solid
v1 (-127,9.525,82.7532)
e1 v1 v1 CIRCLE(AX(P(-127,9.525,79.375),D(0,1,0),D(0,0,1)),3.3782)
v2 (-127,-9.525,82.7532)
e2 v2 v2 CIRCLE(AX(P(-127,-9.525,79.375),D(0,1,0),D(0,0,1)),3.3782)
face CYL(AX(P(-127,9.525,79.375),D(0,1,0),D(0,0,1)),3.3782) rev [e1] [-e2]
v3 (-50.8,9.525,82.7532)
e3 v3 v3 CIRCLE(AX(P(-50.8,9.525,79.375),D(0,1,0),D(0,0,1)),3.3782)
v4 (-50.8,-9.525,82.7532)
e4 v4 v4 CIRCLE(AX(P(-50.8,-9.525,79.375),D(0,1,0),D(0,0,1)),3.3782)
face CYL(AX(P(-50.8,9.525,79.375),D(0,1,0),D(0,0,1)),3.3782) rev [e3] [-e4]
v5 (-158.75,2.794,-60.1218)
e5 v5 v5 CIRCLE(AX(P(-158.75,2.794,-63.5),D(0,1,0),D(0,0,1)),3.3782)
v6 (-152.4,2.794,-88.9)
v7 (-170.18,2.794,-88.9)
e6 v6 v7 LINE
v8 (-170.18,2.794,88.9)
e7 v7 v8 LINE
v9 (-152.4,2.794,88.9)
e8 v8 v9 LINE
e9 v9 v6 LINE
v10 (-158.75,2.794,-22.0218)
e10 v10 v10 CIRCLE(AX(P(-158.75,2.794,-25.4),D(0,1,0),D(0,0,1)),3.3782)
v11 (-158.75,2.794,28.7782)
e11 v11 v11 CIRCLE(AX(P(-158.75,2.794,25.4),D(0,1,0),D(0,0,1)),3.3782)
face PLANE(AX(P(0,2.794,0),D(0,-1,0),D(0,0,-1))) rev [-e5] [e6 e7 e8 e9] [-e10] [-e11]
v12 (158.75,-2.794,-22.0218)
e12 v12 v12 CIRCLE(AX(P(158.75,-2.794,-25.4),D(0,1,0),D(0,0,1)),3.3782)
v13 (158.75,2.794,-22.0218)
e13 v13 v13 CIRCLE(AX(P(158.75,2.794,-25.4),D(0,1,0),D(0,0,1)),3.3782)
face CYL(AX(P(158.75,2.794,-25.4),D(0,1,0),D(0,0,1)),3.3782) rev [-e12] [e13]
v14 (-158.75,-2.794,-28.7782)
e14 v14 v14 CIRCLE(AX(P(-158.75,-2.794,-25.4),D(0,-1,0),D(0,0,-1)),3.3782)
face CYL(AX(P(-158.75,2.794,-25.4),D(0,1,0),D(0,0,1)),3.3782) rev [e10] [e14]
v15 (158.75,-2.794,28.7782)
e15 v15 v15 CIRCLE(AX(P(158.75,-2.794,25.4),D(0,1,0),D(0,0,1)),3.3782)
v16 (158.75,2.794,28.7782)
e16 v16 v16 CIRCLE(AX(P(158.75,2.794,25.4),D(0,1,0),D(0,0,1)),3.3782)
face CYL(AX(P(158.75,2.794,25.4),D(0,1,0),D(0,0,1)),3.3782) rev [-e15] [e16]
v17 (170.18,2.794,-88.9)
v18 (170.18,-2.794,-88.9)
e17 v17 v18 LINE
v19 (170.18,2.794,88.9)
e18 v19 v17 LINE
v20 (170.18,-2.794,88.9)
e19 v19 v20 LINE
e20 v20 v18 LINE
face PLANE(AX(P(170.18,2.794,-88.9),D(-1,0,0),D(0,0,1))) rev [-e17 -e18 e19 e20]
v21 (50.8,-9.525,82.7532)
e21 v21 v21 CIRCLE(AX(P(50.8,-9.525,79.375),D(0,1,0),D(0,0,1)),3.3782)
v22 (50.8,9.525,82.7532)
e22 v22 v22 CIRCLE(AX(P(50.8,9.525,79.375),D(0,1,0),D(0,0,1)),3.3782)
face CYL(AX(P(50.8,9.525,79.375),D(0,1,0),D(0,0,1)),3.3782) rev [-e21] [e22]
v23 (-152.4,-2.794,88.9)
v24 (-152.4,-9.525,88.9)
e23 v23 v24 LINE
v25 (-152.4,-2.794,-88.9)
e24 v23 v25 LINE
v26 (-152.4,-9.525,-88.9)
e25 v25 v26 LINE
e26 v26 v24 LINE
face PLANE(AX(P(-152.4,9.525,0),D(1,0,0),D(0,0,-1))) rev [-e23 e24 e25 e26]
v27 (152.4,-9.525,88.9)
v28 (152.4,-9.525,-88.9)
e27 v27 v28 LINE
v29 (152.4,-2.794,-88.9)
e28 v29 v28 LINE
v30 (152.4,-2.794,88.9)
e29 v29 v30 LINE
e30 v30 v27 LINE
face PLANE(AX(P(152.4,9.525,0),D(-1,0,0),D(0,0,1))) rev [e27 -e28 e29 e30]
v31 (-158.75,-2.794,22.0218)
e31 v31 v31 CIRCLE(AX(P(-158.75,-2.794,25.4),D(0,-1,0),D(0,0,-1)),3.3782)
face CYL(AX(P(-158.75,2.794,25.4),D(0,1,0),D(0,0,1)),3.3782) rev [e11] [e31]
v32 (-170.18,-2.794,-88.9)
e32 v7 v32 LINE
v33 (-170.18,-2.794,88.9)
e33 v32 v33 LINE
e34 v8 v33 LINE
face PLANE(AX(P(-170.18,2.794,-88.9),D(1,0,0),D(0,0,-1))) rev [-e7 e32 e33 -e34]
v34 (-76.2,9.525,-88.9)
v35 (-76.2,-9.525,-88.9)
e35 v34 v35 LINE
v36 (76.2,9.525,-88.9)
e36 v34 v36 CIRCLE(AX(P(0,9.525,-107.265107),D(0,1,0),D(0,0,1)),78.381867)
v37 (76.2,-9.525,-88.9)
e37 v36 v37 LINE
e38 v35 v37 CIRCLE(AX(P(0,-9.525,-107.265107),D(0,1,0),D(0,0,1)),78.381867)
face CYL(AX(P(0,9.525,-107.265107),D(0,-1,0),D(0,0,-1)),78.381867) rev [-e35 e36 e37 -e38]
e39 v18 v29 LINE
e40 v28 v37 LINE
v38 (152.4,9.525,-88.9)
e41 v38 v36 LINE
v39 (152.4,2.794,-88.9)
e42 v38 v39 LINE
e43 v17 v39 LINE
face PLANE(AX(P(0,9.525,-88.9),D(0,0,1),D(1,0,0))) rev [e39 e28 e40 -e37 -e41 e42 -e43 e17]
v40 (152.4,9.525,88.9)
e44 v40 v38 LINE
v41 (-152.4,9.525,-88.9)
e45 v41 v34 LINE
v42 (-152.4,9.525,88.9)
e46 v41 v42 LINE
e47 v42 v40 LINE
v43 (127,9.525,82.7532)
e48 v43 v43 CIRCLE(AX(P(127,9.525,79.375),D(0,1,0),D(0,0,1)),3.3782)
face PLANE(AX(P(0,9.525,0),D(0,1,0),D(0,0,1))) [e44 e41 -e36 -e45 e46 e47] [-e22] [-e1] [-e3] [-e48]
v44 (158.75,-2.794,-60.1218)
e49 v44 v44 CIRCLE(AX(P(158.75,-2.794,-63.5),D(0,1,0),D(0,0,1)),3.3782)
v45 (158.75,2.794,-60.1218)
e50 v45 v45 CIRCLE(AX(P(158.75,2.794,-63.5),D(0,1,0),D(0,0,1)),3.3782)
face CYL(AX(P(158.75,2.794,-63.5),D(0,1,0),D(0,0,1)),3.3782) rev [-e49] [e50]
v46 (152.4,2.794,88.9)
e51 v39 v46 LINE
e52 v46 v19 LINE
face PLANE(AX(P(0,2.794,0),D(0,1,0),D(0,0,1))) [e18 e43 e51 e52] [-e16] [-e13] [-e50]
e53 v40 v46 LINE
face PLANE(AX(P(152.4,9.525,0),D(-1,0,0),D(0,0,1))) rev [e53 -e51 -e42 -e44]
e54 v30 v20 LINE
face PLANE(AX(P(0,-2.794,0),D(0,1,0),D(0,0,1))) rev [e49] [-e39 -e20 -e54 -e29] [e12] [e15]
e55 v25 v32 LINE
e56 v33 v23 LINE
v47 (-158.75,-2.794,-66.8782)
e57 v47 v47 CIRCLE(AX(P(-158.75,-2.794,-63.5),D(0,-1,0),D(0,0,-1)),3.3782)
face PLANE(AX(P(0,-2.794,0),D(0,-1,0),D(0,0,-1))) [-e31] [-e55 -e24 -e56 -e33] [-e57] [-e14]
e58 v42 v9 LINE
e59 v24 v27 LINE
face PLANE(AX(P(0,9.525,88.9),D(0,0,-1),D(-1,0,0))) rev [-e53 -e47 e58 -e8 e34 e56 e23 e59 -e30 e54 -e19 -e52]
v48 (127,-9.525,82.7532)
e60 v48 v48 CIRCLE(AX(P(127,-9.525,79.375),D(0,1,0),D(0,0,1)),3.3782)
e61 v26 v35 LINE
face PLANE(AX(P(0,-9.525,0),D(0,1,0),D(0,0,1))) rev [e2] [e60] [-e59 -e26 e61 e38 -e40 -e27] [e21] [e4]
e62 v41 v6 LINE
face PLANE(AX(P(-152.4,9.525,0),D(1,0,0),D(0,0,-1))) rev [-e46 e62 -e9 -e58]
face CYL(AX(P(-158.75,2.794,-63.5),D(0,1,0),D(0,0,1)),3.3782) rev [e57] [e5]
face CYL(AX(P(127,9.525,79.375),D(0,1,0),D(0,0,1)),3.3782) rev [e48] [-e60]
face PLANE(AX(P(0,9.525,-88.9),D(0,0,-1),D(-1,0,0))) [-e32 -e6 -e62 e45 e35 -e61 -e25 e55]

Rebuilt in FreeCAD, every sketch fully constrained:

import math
import FreeCAD as App
import Part
import Sketcher

V = App.Vector
Q = App.Units.Quantity


def add_polygon(sketch, points):
    """Adds a closed chain of lines whose ends are joined by coincident constraints."""
    first, n = sketch.GeometryCount, len(points)
    for a, b in zip(points, points[1:] + points[:1]):
        sketch.addGeometry(Part.LineSegment(App.Vector(*a, 0), App.Vector(*b, 0)), False)
    for i in range(n):
        sketch.addConstraint(Sketcher.Constraint("Coincident", first + i, 2, first + (i + 1) % n, 1))

doc = App.newDocument("Part")
body = doc.addObject("PartDesign::Body", "Body")

sketch1 = body.newObject("Sketcher::SketchObject", "Sketch")
sketch1.AttachmentSupport = (doc.getObject("XZ_Plane"), [""])
sketch1.MapMode = "FlatFace"
sketch1.addGeometry(Part.LineSegment(V(-76, -89, 0), V(-152, -89, 0)), False)
sketch1.addGeometry(Part.LineSegment(V(-152, -89, 0), V(-152, 89, 0)), False)
sketch1.addGeometry(Part.LineSegment(V(-152, 89, 0), V(152, 89, 0)), False)
sketch1.addGeometry(Part.LineSegment(V(152, 89, 0), V(152, -89, 0)), False)
sketch1.addGeometry(Part.LineSegment(V(152, -89, 0), V(76, -89, 0)), False)
sketch1.addGeometry(Part.ArcOfCircle(Part.Circle(V(0, -107, 0), V(0, 0, 1), 78), math.radians(14), math.radians(166)), False)
sketch1.addConstraint(Sketcher.Constraint("Coincident", 0, 2, 1, 1))
sketch1.addConstraint(Sketcher.Constraint("Coincident", 1, 2, 2, 1))
sketch1.addConstraint(Sketcher.Constraint("Coincident", 2, 2, 3, 1))
sketch1.addConstraint(Sketcher.Constraint("Coincident", 3, 2, 4, 1))
sketch1.addConstraint(Sketcher.Constraint("Coincident", 4, 2, 5, 1))
sketch1.addConstraint(Sketcher.Constraint("Coincident", 5, 2, 0, 1))
sketch1.addConstraint(Sketcher.Constraint("Horizontal", 0))
sketch1.addConstraint(Sketcher.Constraint("Vertical", 1))
sketch1.addConstraint(Sketcher.Constraint("Horizontal", 2))
sketch1.addConstraint(Sketcher.Constraint("Vertical", 3))
sketch1.addConstraint(Sketcher.Constraint("Horizontal", 4))
sketch1.addConstraint(Sketcher.Constraint("Symmetric", 0, 2, 2, 2, -1, 1))
sketch1.addConstraint(Sketcher.Constraint("Symmetric", 4, 2, 5, 2, -2))
sketch1.addConstraint(Sketcher.Constraint("DistanceX", 0, 2, 0, 1, Q("3 in")))
sketch1.addConstraint(Sketcher.Constraint("DistanceX", 2, 1, 2, 2, Q("12 in")))
sketch1.addConstraint(Sketcher.Constraint("DistanceY", 1, 1, 1, 2, Q("7 in")))
sketch1.addConstraint(Sketcher.Constraint("Radius", 5, Q("78.381867 mm")))
pad1 = body.newObject("PartDesign::Pad", "Pad")
pad1.Profile = sketch1
pad1.Length = Q("0.75 in")
pad1.Midplane = True

sketch2 = body.newObject("Sketcher::SketchObject", "Sketch001")
sketch2.AttachmentSupport = (doc.getObject("XZ_Plane"), [""])
sketch2.MapMode = "FlatFace"
add_polygon(sketch2, [(-170, -89), (-170, 89), (-152, 89), (-152, -89)])
add_polygon(sketch2, [(152, -89), (152, 89), (170, 89), (170, -89)])
sketch2.addConstraint(Sketcher.Constraint("Vertical", 0))
sketch2.addConstraint(Sketcher.Constraint("Horizontal", 1))
sketch2.addConstraint(Sketcher.Constraint("Vertical", 2))
sketch2.addConstraint(Sketcher.Constraint("Horizontal", 3))
sketch2.addConstraint(Sketcher.Constraint("Vertical", 4))
sketch2.addConstraint(Sketcher.Constraint("Horizontal", 5))
sketch2.addConstraint(Sketcher.Constraint("Vertical", 6))
sketch2.addConstraint(Sketcher.Constraint("Horizontal", 7))
sketch2.addConstraint(Sketcher.Constraint("Symmetric", 2, 2, 4, 2, -1, 1))
sketch2.addConstraint(Sketcher.Constraint("Symmetric", 0, 2, 6, 2, -1, 1))
sketch2.addConstraint(Sketcher.Constraint("Horizontal", 1, 2, 4, 2))
sketch2.addConstraint(Sketcher.Constraint("DistanceY", 0, 1, 0, 2, Q("7 in")))
sketch2.addConstraint(Sketcher.Constraint("DistanceX", 1, 1, 1, 2, Q("0.7 in")))
sketch2.addConstraint(Sketcher.Constraint("DistanceX", 1, 2, -1, 1, Q("6 in")))
pad2 = body.newObject("PartDesign::Pad", "Pad001")
pad2.Profile = sketch2
pad2.Length = Q("0.22 in")
pad2.Midplane = True

sketch3 = body.newObject("Sketcher::SketchObject", "Sketch002")
sketch3.AttachmentSupport = (doc.getObject("XZ_Plane"), [""])
sketch3.MapMode = "FlatFace"
sketch3.AttachmentOffset = App.Placement(V(0, 0, -0.11 * 25.4), App.Rotation())
sketch3.addGeometry(Part.Circle(V(158.8, -63.5, 0), V(0, 0, 1), 3.4), False)
sketch3.addGeometry(Part.Circle(V(158.8, -25.4, 0), V(0, 0, 1), 3.4), False)
sketch3.addGeometry(Part.Circle(V(158.8, 25.4, 0), V(0, 0, 1), 3.4), False)
sketch3.addConstraint(Sketcher.Constraint("Equal", 0, 1))
sketch3.addConstraint(Sketcher.Constraint("Equal", 1, 2))
sketch3.addConstraint(Sketcher.Constraint("Symmetric", 1, 3, 2, 3, -1))
sketch3.addConstraint(Sketcher.Constraint("Vertical", 0, 3, 1, 3))
sketch3.addConstraint(Sketcher.Constraint("Diameter", 0, Q("0.266 in")))
sketch3.addConstraint(Sketcher.Constraint("DistanceY", 1, 3, -1, 1, Q("1 in")))
sketch3.addConstraint(Sketcher.Constraint("DistanceY", 0, 3, -1, 1, Q("2.5 in")))
sketch3.addConstraint(Sketcher.Constraint("DistanceX", -1, 1, 0, 3, Q("6.25 in")))
doc.recompute()
hole = body.newObject("PartDesign::Hole", "Hole")
hole.Profile = sketch3
hole.ThreadType = "None"
hole.Diameter = Q("0.266 in")
hole.DepthType = "ThroughAll"
hole.Reversed = True
doc.recompute()

mirrored = body.newObject("PartDesign::Mirrored", "Mirrored")
mirrored.Originals = [hole]
mirrored.MirrorPlane = (doc.getObject("YZ_Plane"), [""])
body.Tip = mirrored

sketch4 = body.newObject("Sketcher::SketchObject", "Sketch003")
sketch4.AttachmentSupport = (doc.getObject("XZ_Plane"), [""])
sketch4.MapMode = "FlatFace"
sketch4.AttachmentOffset = App.Placement(V(0, 0, -0.375 * 25.4), App.Rotation())
sketch4.addGeometry(Part.Circle(V(-127, 79.4, 0), V(0, 0, 1), 3.4), False)
sketch4.addGeometry(Part.Circle(V(-50.8, 79.4, 0), V(0, 0, 1), 3.4), False)
sketch4.addConstraint(Sketcher.Constraint("Equal", 0, 1))
sketch4.addConstraint(Sketcher.Constraint("Horizontal", 0, 3, 1, 3))
sketch4.addConstraint(Sketcher.Constraint("Diameter", 0, Q("0.266 in")))
sketch4.addConstraint(Sketcher.Constraint("DistanceX", 0, 3, -1, 1, Q("5 in")))
sketch4.addConstraint(Sketcher.Constraint("DistanceX", 1, 3, -1, 1, Q("2 in")))
sketch4.addConstraint(Sketcher.Constraint("DistanceY", -1, 1, 0, 3, Q("3.125 in")))
doc.recompute()
hole2 = body.newObject("PartDesign::Hole", "Hole001")
hole2.Profile = sketch4
hole2.ThreadType = "None"
hole2.Diameter = Q("0.266 in")
hole2.DepthType = "ThroughAll"
hole2.Reversed = True
doc.recompute()

mirrored2 = body.newObject("PartDesign::Mirrored", "Mirrored001")
mirrored2.Originals = [hole2]
mirrored2.MirrorPlane = (doc.getObject("YZ_Plane"), [""])
body.Tip = mirrored2

doc.recompute()
